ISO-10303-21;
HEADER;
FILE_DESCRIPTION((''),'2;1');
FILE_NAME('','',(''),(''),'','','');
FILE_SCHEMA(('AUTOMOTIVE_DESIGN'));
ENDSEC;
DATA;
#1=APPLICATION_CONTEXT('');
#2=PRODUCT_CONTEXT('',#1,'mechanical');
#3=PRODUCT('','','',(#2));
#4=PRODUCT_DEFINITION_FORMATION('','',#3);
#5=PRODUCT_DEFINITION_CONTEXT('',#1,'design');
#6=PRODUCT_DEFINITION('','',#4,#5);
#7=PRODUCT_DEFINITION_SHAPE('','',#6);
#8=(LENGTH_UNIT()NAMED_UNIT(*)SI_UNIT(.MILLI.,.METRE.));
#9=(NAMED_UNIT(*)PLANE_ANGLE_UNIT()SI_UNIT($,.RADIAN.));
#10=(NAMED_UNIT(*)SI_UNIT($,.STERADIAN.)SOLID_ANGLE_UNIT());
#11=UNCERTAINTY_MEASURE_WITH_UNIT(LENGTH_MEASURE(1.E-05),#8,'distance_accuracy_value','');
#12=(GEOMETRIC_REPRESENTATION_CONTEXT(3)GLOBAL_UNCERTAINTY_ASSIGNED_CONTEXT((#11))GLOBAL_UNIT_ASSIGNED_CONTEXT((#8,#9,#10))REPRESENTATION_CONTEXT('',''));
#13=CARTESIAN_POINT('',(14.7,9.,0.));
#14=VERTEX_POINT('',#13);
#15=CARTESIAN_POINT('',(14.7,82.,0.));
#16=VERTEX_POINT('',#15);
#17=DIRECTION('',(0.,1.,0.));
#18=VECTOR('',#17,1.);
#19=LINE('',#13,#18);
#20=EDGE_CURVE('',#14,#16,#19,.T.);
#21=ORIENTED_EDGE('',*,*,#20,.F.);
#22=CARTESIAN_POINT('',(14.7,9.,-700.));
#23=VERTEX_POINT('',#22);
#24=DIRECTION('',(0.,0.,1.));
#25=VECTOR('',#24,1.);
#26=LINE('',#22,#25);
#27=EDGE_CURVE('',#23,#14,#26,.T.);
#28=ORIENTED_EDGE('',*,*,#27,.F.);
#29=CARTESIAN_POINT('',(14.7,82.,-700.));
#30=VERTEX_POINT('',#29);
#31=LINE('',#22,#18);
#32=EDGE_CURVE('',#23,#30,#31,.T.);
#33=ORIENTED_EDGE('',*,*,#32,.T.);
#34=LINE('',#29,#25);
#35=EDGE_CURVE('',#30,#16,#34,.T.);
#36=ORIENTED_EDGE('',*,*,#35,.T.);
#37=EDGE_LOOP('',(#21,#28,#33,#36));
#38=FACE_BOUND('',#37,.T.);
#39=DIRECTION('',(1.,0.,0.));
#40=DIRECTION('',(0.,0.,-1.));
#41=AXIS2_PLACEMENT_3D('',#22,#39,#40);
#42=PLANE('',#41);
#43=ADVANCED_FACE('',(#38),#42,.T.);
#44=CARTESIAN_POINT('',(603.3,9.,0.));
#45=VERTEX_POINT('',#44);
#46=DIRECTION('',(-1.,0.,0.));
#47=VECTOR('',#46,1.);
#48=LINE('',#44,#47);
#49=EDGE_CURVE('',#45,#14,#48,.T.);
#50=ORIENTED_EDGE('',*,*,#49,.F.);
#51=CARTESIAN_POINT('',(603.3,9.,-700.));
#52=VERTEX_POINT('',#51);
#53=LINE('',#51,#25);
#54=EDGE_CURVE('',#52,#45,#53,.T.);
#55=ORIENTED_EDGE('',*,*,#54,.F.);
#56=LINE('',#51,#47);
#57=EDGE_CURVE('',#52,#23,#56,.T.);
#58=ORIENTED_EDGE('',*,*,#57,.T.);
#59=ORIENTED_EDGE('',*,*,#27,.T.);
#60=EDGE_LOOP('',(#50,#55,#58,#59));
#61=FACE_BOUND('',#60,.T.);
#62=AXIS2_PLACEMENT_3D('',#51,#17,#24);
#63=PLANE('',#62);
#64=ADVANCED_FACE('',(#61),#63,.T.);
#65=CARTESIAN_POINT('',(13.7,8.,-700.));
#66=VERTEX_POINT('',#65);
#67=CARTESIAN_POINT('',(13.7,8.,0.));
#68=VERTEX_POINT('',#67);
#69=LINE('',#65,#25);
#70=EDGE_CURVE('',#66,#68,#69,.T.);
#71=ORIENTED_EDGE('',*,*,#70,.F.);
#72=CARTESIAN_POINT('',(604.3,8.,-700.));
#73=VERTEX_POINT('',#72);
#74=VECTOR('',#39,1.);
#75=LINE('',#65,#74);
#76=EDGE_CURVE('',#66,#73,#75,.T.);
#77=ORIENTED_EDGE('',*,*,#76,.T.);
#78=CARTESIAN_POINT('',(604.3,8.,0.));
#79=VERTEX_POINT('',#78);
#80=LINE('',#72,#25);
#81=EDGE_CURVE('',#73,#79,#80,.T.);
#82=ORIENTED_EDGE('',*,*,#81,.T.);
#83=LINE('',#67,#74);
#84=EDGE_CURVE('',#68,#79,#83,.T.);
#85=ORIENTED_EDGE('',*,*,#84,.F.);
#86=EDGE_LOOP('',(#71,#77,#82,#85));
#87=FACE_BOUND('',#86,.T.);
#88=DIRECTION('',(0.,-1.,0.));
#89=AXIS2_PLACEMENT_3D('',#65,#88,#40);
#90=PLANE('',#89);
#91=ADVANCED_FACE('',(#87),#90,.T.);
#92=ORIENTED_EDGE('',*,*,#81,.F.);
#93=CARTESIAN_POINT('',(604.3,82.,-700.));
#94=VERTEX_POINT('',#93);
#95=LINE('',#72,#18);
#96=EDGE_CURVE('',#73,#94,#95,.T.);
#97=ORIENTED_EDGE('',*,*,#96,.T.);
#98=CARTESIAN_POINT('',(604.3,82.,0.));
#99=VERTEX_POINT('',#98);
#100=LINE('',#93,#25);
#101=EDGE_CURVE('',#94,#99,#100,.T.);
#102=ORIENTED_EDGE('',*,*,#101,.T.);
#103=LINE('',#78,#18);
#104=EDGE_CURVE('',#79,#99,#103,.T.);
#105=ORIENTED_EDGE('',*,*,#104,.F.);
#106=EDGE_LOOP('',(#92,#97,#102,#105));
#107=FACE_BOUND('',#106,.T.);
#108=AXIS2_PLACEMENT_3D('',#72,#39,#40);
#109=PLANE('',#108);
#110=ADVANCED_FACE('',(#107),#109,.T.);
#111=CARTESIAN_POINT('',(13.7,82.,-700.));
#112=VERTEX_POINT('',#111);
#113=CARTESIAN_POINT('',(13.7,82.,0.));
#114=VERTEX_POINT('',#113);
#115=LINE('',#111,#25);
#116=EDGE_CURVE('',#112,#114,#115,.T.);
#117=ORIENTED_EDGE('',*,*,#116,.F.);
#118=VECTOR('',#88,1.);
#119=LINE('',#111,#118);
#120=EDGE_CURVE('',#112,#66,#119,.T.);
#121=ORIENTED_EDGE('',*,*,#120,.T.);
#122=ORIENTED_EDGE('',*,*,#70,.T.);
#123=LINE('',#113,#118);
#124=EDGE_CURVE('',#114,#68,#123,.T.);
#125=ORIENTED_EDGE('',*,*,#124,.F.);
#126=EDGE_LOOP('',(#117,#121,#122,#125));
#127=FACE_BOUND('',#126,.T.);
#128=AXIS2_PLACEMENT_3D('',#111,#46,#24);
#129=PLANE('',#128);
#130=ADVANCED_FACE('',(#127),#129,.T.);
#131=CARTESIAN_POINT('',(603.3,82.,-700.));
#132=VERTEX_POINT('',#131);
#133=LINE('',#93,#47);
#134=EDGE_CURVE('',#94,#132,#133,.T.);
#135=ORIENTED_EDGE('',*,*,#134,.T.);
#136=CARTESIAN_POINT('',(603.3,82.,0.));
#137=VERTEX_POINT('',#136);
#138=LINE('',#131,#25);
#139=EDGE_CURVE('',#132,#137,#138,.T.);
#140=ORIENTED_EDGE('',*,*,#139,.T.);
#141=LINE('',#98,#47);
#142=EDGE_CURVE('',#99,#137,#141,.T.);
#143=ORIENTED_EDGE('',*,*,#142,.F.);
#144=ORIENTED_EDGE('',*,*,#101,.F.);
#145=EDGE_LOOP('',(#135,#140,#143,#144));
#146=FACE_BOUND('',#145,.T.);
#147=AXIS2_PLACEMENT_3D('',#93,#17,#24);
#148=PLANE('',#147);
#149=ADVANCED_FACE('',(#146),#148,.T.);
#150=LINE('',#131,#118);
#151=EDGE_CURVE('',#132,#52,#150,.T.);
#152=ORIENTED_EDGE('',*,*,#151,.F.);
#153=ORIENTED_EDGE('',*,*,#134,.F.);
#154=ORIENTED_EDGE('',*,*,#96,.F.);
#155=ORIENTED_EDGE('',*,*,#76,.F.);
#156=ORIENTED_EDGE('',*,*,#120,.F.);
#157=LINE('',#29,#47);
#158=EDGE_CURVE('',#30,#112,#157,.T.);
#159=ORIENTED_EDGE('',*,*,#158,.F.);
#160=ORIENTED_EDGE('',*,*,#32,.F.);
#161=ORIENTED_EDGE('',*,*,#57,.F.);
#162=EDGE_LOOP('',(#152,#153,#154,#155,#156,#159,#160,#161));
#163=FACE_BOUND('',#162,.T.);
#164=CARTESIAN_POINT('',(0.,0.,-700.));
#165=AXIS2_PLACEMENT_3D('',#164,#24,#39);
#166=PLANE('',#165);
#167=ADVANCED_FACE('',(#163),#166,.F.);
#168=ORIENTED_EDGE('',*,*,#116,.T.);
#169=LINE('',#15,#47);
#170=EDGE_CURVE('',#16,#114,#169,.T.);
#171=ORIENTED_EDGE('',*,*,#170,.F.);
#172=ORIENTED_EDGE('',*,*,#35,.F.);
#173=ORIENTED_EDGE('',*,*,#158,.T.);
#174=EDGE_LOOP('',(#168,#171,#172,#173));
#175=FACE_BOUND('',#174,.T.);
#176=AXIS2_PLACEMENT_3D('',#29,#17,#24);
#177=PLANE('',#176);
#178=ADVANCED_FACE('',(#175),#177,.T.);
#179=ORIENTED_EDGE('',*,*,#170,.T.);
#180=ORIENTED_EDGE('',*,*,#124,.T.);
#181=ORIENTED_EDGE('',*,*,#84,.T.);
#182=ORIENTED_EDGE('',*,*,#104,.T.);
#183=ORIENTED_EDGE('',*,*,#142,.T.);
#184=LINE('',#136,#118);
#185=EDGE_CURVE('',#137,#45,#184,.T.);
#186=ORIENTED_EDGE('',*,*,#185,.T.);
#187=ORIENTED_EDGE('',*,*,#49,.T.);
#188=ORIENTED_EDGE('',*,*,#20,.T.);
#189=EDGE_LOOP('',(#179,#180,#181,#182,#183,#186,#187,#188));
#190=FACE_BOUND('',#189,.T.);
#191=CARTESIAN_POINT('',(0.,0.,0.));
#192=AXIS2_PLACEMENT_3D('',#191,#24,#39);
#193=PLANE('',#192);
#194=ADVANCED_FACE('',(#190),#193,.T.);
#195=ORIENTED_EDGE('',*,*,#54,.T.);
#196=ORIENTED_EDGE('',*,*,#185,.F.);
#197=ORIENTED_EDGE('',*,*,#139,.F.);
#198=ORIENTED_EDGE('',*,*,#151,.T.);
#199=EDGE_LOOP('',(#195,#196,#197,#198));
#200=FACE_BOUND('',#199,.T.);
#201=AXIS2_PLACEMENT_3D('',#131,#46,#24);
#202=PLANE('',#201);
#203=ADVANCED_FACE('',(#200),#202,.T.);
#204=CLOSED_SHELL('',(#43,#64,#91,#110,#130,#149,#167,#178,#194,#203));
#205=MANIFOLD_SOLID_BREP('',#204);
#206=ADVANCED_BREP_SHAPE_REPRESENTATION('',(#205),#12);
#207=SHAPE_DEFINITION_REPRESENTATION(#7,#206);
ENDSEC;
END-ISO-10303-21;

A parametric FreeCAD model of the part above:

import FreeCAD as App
import Part
import Sketcher
Q = App.Units.Quantity


def add_polygon(sketch, points):
    """Adds a closed chain of lines whose ends are joined by coincident constraints."""
    first, n = sketch.GeometryCount, len(points)
    for a, b in zip(points, points[1:] + points[:1]):
        sketch.addGeometry(Part.LineSegment(App.Vector(*a, 0), App.Vector(*b, 0)), False)
    for i in range(n):
        sketch.addConstraint(Sketcher.Constraint("Coincident", first + i, 2, first + (i + 1) % n, 1))

doc = App.newDocument("Part")
params = doc.addObject("Spreadsheet::Sheet", "Params")
for row, (alias, value) in enumerate([
    ("sketch1_width", "1 mm"),
    ("sketch1_height", "74 mm"),
    ("sketch1_height2", "73 mm"),
    ("sketch1_width2", "590.6 mm"),
    ("pad1_length", "700 mm"),
], start=1):
    params.set(f"A{row}", alias)
    params.set(f"B{row}", "=" + value)
    params.setAlias(f"B{row}", alias)

body = doc.addObject("PartDesign::Body", "Body")

# Sketch on XY plane
sketch1 = doc.addObject("Sketcher::SketchObject", "Sketch")
body.addObject(sketch1)
sketch1.AttachmentSupport = (doc.XY_Plane, [""])
sketch1.MapMode = "FlatFace"
add_polygon(sketch1, [(13.7, 82), (13.7, 8), (604.3, 8), (604.3, 82), (603.3, 82), (603.3, 9), (14.7, 9), (14.7, 82)])  # lines 0-7
sketch1.addConstraint(Sketcher.Constraint("Vertical", 0))
sketch1.addConstraint(Sketcher.Constraint("Horizontal", 1))
sketch1.addConstraint(Sketcher.Constraint("Vertical", 2))
sketch1.addConstraint(Sketcher.Constraint("Horizontal", 3))
sketch1.addConstraint(Sketcher.Constraint("Vertical", 4))
sketch1.addConstraint(Sketcher.Constraint("Horizontal", 5))
sketch1.addConstraint(Sketcher.Constraint("Vertical", 6))
sketch1.addConstraint(Sketcher.Constraint("Horizontal", 7))
sketch1.addConstraint(Sketcher.Constraint("Horizontal", 3, 2, 6, 2))
sketch1.addConstraint(Sketcher.Constraint("Equal", 3, 7))
sketch1.addConstraint(Sketcher.Constraint("DistanceX", 3, 2, 3, 1, Q("1 mm")))
sketch1.addConstraint(Sketcher.Constraint("DistanceY", 0, 2, 0, 1, Q("74 mm")))
sketch1.addConstraint(Sketcher.Constraint("DistanceY", 4, 2, 4, 1, Q("73 mm")))
sketch1.addConstraint(Sketcher.Constraint("DistanceX", 1, 1, 1, 2, Q("590.6 mm")))
sketch1.addConstraint(Sketcher.Constraint("DistanceY", -1, 1, 0, 2, Q("8 mm")))
sketch1.addConstraint(Sketcher.Constraint("DistanceX", -1, 1, 0, 2, Q("13.7 mm")))
sketch1.setExpression("Constraints[18]", "Params.sketch1_width")
sketch1.setExpression("Constraints[19]", "Params.sketch1_height")
sketch1.setExpression("Constraints[20]", "Params.sketch1_height2")
sketch1.setExpression("Constraints[21]", "Params.sketch1_width2")
pad1 = doc.addObject("PartDesign::Pad", "Pad")
body.addObject(pad1)
pad1.Profile = sketch1
pad1.setExpression("Length", "Params.pad1_length")
pad1.Reversed = True

doc.recompute()
